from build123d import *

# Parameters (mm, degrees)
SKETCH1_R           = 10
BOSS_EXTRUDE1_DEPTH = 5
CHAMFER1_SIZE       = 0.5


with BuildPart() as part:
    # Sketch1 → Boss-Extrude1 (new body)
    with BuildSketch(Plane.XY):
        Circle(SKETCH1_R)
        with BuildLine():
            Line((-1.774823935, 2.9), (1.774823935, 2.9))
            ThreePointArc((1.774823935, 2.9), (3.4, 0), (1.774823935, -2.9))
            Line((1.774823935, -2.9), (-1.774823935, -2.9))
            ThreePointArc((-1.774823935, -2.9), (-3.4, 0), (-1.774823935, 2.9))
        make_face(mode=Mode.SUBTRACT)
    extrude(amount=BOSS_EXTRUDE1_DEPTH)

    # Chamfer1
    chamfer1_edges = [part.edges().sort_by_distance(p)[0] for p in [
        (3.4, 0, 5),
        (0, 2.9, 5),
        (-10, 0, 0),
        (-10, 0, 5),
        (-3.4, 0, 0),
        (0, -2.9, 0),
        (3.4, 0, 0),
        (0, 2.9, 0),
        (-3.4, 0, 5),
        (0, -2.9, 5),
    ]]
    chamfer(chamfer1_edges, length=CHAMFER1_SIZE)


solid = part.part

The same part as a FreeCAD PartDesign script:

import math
import FreeCAD as App
import Part
import Sketcher

V = App.Vector


def edges_at(feature, points):
    """Names of the edges that pass closest to the given points."""
    edges = feature.Shape.Edges
    near = lambda p: min(range(len(edges)), key=lambda i: edges[i].distToShape(Part.Vertex(*p))[0])
    return sorted({f"Edge{near(p) + 1}" for p in points})

doc = App.newDocument("Part")
params = doc.addObject("Spreadsheet::Sheet", "Params")
for row, (alias, value) in enumerate([
    ("sketch1_diameter", "20 mm"),
    ("sketch1_radius", "3.4 mm"),
    ("pad1_length", "5 mm"),
    ("chamfer_size", "0.5 mm"),
], start=1):
    params.set(f"A{row}", alias)
    params.set(f"B{row}", "=" + value)
    params.setAlias(f"B{row}", alias)

body = doc.addObject("PartDesign::Body", "Body")

# Sketch on XY plane
sketch1 = body.newObject("Sketcher::SketchObject", "Sketch")
sketch1.AttachmentSupport = (doc.getObject("XY_Plane"), [""])
sketch1.MapMode = "FlatFace"
sketch1.addGeometry([
    Part.Circle(V(0, 0, 0), V(0, 0, 1), 10),  # 0
    Part.ArcOfCircle(Part.Circle(V(0, 0, 0), V(0, 0, 1), 3.4), math.radians(121), math.radians(239)),  # 1
    Part.LineSegment(V(-1.8, 2.9, 0), V(1.8, 2.9, 0)),  # 2
    Part.ArcOfCircle(Part.Circle(V(0, 0, 0), V(0, 0, 1), 3.4), math.radians(-59), math.radians(59)),  # 3
    Part.LineSegment(V(1.8, -2.9, 0), V(-1.8, -2.9, 0)),  # 4
], False)
sketch1.addConstraint([
    Sketcher.Constraint("Coincident", 1, 1, 2, 1),
    Sketcher.Constraint("Coincident", 2, 2, 3, 2),
    Sketcher.Constraint("Coincident", 3, 1, 4, 1),
    Sketcher.Constraint("Coincident", 4, 2, 1, 2),
    Sketcher.Constraint("Horizontal", 2),
    Sketcher.Constraint("Horizontal", 4),
    Sketcher.Constraint("Coincident", 0, 3, -1, 1),
    Sketcher.Constraint("Coincident", 1, 3, -1, 1),
    Sketcher.Constraint("Coincident", 3, 3, -1, 1),
    Sketcher.Constraint("Equal", 1, 3),
    Sketcher.Constraint("Vertical", 2, 2, 3, 1),
    Sketcher.Constraint("Diameter", 0, 20.0),
    Sketcher.Constraint("Radius", 1, 3.4),
    Sketcher.Constraint("DistanceY", -1, 1, 1, 1, 2.9),
])
sketch1.setExpression("Constraints[11]", "Params.sketch1_diameter")
sketch1.setExpression("Constraints[12]", "Params.sketch1_radius")
pad1 = body.newObject("PartDesign::Pad", "Pad")
pad1.Profile = sketch1
pad1.setExpression("Length", "Params.pad1_length")
doc.recompute()

chamfer = body.newObject("PartDesign::Chamfer", "Chamfer")
chamfer.Base = (pad1, edges_at(pad1, [
    (3.4, 0, 5),
    (0, 2.9, 5),
    (-10, 0, 0),
    (-10, 0, 5),
    (-3.4, 0, 0),
    (0, -2.9, 0),
    (3.4, 0, 0),
    (0, 2.9, 0),
    (-3.4, 0, 5),
    (0, -2.9, 5),
]))
chamfer.setExpression("Size", "Params.chamfer_size")

doc.recompute()
